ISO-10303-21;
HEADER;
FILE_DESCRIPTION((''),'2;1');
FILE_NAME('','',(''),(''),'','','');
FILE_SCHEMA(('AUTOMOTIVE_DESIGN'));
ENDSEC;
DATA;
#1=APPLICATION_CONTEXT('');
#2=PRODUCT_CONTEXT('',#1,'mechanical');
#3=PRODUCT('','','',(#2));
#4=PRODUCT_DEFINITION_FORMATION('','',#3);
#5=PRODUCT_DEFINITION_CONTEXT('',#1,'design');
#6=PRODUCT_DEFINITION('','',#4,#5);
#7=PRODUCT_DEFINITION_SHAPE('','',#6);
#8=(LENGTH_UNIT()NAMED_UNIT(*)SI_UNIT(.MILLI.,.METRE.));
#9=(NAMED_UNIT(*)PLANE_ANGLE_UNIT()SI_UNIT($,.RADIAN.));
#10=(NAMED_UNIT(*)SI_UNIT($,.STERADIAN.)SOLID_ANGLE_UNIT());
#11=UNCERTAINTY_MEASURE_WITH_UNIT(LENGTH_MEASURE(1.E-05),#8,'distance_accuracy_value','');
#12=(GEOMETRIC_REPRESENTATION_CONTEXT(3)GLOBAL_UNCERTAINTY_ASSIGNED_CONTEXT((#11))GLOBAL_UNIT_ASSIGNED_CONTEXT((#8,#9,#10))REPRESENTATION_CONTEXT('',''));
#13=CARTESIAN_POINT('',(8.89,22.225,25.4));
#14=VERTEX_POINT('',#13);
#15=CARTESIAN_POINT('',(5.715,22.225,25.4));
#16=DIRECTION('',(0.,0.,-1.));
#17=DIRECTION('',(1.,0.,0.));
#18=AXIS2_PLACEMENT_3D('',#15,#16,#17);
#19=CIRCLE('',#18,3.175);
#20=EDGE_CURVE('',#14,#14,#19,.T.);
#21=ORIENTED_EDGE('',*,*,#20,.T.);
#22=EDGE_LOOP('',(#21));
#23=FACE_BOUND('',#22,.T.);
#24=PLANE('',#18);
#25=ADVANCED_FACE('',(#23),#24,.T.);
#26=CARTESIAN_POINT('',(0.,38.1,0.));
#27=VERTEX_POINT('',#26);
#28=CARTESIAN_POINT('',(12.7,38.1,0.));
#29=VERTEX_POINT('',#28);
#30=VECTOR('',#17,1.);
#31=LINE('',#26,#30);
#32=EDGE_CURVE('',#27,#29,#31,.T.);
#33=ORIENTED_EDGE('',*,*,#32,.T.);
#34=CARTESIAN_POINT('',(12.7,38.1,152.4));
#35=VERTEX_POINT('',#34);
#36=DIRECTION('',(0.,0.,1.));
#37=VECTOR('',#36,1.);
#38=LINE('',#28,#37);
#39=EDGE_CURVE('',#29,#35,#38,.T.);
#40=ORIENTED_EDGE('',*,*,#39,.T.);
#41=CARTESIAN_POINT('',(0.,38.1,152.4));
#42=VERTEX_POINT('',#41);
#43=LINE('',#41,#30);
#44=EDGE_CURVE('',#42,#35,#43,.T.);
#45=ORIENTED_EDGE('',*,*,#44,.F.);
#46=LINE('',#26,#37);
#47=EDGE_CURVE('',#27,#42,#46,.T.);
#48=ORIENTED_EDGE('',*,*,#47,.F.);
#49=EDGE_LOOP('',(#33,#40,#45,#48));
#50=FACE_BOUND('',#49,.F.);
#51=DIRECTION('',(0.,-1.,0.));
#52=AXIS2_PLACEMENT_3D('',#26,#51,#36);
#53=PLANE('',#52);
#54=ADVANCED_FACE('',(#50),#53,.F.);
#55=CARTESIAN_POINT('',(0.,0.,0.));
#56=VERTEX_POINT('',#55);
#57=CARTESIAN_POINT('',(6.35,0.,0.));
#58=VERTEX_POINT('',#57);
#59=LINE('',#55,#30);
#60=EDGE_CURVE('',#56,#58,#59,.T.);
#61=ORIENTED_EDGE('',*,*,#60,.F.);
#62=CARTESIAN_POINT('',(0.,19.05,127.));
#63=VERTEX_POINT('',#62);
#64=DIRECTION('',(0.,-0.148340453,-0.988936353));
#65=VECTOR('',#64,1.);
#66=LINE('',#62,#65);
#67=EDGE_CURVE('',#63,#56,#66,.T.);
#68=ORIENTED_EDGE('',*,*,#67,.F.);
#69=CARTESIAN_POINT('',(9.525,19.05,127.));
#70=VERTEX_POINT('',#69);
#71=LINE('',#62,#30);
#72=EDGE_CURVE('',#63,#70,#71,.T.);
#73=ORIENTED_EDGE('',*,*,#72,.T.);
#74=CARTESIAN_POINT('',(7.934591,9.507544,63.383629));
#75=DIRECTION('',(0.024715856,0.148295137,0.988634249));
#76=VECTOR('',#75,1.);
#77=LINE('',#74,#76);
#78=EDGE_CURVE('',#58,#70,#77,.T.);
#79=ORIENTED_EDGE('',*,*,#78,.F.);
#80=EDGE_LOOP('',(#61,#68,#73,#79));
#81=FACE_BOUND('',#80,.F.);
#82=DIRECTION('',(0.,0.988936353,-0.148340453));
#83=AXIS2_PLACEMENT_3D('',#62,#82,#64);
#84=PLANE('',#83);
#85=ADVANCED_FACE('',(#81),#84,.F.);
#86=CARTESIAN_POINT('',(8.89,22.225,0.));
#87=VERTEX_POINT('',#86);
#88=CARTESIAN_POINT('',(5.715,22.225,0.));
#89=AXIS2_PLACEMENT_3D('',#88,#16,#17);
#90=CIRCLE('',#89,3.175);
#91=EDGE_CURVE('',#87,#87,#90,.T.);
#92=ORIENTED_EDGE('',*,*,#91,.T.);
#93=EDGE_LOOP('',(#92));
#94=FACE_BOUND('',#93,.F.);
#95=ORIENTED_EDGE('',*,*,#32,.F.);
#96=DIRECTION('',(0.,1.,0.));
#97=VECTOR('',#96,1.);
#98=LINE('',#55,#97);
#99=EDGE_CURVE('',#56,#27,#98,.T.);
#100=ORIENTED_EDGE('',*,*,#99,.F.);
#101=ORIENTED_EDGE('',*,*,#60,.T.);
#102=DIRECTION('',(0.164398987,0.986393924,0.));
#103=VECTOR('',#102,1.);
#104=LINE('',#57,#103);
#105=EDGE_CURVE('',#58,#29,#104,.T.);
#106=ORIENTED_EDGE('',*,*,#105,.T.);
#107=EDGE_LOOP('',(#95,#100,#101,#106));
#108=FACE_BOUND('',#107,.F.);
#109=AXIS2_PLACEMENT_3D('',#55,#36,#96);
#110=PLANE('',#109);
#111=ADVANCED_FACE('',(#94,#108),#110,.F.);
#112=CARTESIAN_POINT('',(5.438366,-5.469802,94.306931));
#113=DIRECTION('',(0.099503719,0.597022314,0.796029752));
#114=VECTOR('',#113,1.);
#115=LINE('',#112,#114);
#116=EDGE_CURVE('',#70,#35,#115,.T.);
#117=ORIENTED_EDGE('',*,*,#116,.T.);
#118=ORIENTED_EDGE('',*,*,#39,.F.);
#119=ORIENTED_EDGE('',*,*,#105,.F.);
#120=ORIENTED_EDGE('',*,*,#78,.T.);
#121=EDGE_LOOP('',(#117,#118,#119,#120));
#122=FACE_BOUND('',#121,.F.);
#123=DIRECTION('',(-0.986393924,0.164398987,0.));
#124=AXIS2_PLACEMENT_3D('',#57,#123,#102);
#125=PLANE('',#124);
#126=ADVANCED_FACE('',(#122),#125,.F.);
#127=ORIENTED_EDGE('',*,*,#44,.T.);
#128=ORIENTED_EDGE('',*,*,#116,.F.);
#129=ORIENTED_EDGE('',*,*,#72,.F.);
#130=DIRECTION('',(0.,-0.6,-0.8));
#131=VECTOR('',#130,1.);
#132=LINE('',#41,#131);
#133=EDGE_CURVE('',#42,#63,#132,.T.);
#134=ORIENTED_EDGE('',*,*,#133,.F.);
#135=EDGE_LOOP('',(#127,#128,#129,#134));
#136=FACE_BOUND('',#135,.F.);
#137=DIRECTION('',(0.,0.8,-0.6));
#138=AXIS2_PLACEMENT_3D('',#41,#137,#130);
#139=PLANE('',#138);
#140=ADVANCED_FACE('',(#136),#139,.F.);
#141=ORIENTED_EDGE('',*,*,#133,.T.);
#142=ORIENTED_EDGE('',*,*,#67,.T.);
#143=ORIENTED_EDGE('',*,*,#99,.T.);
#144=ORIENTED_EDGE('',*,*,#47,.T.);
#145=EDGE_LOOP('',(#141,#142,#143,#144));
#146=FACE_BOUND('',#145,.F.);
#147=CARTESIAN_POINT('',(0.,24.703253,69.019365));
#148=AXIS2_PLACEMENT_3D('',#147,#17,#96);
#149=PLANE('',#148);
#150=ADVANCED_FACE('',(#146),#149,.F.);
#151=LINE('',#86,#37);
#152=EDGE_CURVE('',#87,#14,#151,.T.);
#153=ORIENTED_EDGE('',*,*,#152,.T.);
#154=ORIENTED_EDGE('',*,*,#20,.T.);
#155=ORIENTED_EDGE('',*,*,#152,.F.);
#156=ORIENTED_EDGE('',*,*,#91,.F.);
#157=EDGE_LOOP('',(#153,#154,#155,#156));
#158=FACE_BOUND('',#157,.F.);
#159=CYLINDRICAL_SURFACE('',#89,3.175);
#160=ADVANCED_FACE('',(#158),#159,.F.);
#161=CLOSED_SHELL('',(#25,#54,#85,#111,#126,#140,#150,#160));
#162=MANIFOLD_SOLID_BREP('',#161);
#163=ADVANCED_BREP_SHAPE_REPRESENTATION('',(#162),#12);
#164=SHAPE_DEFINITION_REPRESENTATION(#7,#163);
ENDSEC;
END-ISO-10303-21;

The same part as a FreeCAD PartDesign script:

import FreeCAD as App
import Part
import Sketcher
Q = App.Units.Quantity


def add_polygon(sketch, points):
    """Adds a closed chain of lines whose ends are joined by coincident constraints."""
    first, n = sketch.GeometryCount, len(points)
    for a, b in zip(points, points[1:] + points[:1]):
        sketch.addGeometry(Part.LineSegment(App.Vector(*a, 0), App.Vector(*b, 0)), False)
    for i in range(n):
        sketch.addConstraint(Sketcher.Constraint("Coincident", first + i, 2, first + (i + 1) % n, 1))

doc = App.newDocument("Part")
body = doc.addObject("PartDesign::Body", "Body")

# Sketch on YZ plane
sketch1 = body.newObject("Sketcher::SketchObject", "Sketch")
sketch1.AttachmentSupport = (doc.getObject("YZ_Plane"), [""])
sketch1.MapMode = "FlatFace"
add_polygon(sketch1, [(19, 127), (0, 0), (38, 0), (38, 152)])  # lines 0-3
sketch1.addConstraint(Sketcher.Constraint("Horizontal", 1))
sketch1.addConstraint(Sketcher.Constraint("Vertical", 2))
sketch1.addConstraint(Sketcher.Constraint("Coincident", 0, 2, -1, 1))
sketch1.addConstraint(Sketcher.Constraint("DistanceY", 2, 1, 2, 2, Q("6 in")))
sketch1.addConstraint(Sketcher.Constraint("DistanceX", 1, 1, 1, 2, Q("1.5 in")))
sketch1.addConstraint(Sketcher.Constraint("DistanceY", -1, 1, 3, 2, Q("5 in")))
sketch1.addConstraint(Sketcher.Constraint("Distance", 3, Q("1.25 in")))
pad1 = body.newObject("PartDesign::Pad", "Pad")
pad1.Profile = sketch1
pad1.Length = Q("0.5 in")

# Sketch on XY plane
sketch2 = body.newObject("Sketcher::SketchObject", "Sketch001")
sketch2.AttachmentSupport = (doc.getObject("XY_Plane"), [""])
sketch2.MapMode = "FlatFace"
sketch2.addGeometry(Part.Circle(App.Vector(5.7, 22.2, 0), App.Vector(0, 0, 1), 3.2), False)
sketch2.addConstraint(Sketcher.Constraint("Diameter", 0, Q("0.25 in")))
sketch2.addConstraint(Sketcher.Constraint("DistanceX", -1, 1, 0, 3, Q("0.225 in")))
sketch2.addConstraint(Sketcher.Constraint("DistanceY", -1, 1, 0, 3, Q("0.875 in")))
pocket1 = body.newObject("PartDesign::Pocket", "Pocket")
pocket1.Profile = sketch2
pocket1.Length = Q("1 in")
pocket1.Reversed = True

# Sketch on XY plane
sketch3 = body.newObject("Sketcher::SketchObject", "Sketch002")
sketch3.AttachmentSupport = (doc.getObject("XY_Plane"), [""])
sketch3.MapMode = "FlatFace"
add_polygon(sketch3, [(6, 0), (13, 38), (13, 0)])  # lines 0-2
sketch3.addConstraint(Sketcher.Constraint("Vertical", 1))
sketch3.addConstraint(Sketcher.Constraint("Horizontal", 2))
sketch3.addConstraint(Sketcher.Constraint("PointOnObject", 1, 2, -1))
sketch3.addConstraint(Sketcher.Constraint("DistanceY", 1, 2, 1, 1, Q("1.5 in")))
sketch3.addConstraint(Sketcher.Constraint("DistanceX", 2, 2, 2, 1, Q("0.25 in")))
sketch3.addConstraint(Sketcher.Constraint("DistanceX", -1, 1, 0, 2, Q("0.5 in")))
pocket2 = body.newObject("PartDesign::Pocket", "Pocket001")
pocket2.Profile = sketch3
pocket2.Length = Q("10 in")
pocket2.Reversed = True

doc.recompute()
